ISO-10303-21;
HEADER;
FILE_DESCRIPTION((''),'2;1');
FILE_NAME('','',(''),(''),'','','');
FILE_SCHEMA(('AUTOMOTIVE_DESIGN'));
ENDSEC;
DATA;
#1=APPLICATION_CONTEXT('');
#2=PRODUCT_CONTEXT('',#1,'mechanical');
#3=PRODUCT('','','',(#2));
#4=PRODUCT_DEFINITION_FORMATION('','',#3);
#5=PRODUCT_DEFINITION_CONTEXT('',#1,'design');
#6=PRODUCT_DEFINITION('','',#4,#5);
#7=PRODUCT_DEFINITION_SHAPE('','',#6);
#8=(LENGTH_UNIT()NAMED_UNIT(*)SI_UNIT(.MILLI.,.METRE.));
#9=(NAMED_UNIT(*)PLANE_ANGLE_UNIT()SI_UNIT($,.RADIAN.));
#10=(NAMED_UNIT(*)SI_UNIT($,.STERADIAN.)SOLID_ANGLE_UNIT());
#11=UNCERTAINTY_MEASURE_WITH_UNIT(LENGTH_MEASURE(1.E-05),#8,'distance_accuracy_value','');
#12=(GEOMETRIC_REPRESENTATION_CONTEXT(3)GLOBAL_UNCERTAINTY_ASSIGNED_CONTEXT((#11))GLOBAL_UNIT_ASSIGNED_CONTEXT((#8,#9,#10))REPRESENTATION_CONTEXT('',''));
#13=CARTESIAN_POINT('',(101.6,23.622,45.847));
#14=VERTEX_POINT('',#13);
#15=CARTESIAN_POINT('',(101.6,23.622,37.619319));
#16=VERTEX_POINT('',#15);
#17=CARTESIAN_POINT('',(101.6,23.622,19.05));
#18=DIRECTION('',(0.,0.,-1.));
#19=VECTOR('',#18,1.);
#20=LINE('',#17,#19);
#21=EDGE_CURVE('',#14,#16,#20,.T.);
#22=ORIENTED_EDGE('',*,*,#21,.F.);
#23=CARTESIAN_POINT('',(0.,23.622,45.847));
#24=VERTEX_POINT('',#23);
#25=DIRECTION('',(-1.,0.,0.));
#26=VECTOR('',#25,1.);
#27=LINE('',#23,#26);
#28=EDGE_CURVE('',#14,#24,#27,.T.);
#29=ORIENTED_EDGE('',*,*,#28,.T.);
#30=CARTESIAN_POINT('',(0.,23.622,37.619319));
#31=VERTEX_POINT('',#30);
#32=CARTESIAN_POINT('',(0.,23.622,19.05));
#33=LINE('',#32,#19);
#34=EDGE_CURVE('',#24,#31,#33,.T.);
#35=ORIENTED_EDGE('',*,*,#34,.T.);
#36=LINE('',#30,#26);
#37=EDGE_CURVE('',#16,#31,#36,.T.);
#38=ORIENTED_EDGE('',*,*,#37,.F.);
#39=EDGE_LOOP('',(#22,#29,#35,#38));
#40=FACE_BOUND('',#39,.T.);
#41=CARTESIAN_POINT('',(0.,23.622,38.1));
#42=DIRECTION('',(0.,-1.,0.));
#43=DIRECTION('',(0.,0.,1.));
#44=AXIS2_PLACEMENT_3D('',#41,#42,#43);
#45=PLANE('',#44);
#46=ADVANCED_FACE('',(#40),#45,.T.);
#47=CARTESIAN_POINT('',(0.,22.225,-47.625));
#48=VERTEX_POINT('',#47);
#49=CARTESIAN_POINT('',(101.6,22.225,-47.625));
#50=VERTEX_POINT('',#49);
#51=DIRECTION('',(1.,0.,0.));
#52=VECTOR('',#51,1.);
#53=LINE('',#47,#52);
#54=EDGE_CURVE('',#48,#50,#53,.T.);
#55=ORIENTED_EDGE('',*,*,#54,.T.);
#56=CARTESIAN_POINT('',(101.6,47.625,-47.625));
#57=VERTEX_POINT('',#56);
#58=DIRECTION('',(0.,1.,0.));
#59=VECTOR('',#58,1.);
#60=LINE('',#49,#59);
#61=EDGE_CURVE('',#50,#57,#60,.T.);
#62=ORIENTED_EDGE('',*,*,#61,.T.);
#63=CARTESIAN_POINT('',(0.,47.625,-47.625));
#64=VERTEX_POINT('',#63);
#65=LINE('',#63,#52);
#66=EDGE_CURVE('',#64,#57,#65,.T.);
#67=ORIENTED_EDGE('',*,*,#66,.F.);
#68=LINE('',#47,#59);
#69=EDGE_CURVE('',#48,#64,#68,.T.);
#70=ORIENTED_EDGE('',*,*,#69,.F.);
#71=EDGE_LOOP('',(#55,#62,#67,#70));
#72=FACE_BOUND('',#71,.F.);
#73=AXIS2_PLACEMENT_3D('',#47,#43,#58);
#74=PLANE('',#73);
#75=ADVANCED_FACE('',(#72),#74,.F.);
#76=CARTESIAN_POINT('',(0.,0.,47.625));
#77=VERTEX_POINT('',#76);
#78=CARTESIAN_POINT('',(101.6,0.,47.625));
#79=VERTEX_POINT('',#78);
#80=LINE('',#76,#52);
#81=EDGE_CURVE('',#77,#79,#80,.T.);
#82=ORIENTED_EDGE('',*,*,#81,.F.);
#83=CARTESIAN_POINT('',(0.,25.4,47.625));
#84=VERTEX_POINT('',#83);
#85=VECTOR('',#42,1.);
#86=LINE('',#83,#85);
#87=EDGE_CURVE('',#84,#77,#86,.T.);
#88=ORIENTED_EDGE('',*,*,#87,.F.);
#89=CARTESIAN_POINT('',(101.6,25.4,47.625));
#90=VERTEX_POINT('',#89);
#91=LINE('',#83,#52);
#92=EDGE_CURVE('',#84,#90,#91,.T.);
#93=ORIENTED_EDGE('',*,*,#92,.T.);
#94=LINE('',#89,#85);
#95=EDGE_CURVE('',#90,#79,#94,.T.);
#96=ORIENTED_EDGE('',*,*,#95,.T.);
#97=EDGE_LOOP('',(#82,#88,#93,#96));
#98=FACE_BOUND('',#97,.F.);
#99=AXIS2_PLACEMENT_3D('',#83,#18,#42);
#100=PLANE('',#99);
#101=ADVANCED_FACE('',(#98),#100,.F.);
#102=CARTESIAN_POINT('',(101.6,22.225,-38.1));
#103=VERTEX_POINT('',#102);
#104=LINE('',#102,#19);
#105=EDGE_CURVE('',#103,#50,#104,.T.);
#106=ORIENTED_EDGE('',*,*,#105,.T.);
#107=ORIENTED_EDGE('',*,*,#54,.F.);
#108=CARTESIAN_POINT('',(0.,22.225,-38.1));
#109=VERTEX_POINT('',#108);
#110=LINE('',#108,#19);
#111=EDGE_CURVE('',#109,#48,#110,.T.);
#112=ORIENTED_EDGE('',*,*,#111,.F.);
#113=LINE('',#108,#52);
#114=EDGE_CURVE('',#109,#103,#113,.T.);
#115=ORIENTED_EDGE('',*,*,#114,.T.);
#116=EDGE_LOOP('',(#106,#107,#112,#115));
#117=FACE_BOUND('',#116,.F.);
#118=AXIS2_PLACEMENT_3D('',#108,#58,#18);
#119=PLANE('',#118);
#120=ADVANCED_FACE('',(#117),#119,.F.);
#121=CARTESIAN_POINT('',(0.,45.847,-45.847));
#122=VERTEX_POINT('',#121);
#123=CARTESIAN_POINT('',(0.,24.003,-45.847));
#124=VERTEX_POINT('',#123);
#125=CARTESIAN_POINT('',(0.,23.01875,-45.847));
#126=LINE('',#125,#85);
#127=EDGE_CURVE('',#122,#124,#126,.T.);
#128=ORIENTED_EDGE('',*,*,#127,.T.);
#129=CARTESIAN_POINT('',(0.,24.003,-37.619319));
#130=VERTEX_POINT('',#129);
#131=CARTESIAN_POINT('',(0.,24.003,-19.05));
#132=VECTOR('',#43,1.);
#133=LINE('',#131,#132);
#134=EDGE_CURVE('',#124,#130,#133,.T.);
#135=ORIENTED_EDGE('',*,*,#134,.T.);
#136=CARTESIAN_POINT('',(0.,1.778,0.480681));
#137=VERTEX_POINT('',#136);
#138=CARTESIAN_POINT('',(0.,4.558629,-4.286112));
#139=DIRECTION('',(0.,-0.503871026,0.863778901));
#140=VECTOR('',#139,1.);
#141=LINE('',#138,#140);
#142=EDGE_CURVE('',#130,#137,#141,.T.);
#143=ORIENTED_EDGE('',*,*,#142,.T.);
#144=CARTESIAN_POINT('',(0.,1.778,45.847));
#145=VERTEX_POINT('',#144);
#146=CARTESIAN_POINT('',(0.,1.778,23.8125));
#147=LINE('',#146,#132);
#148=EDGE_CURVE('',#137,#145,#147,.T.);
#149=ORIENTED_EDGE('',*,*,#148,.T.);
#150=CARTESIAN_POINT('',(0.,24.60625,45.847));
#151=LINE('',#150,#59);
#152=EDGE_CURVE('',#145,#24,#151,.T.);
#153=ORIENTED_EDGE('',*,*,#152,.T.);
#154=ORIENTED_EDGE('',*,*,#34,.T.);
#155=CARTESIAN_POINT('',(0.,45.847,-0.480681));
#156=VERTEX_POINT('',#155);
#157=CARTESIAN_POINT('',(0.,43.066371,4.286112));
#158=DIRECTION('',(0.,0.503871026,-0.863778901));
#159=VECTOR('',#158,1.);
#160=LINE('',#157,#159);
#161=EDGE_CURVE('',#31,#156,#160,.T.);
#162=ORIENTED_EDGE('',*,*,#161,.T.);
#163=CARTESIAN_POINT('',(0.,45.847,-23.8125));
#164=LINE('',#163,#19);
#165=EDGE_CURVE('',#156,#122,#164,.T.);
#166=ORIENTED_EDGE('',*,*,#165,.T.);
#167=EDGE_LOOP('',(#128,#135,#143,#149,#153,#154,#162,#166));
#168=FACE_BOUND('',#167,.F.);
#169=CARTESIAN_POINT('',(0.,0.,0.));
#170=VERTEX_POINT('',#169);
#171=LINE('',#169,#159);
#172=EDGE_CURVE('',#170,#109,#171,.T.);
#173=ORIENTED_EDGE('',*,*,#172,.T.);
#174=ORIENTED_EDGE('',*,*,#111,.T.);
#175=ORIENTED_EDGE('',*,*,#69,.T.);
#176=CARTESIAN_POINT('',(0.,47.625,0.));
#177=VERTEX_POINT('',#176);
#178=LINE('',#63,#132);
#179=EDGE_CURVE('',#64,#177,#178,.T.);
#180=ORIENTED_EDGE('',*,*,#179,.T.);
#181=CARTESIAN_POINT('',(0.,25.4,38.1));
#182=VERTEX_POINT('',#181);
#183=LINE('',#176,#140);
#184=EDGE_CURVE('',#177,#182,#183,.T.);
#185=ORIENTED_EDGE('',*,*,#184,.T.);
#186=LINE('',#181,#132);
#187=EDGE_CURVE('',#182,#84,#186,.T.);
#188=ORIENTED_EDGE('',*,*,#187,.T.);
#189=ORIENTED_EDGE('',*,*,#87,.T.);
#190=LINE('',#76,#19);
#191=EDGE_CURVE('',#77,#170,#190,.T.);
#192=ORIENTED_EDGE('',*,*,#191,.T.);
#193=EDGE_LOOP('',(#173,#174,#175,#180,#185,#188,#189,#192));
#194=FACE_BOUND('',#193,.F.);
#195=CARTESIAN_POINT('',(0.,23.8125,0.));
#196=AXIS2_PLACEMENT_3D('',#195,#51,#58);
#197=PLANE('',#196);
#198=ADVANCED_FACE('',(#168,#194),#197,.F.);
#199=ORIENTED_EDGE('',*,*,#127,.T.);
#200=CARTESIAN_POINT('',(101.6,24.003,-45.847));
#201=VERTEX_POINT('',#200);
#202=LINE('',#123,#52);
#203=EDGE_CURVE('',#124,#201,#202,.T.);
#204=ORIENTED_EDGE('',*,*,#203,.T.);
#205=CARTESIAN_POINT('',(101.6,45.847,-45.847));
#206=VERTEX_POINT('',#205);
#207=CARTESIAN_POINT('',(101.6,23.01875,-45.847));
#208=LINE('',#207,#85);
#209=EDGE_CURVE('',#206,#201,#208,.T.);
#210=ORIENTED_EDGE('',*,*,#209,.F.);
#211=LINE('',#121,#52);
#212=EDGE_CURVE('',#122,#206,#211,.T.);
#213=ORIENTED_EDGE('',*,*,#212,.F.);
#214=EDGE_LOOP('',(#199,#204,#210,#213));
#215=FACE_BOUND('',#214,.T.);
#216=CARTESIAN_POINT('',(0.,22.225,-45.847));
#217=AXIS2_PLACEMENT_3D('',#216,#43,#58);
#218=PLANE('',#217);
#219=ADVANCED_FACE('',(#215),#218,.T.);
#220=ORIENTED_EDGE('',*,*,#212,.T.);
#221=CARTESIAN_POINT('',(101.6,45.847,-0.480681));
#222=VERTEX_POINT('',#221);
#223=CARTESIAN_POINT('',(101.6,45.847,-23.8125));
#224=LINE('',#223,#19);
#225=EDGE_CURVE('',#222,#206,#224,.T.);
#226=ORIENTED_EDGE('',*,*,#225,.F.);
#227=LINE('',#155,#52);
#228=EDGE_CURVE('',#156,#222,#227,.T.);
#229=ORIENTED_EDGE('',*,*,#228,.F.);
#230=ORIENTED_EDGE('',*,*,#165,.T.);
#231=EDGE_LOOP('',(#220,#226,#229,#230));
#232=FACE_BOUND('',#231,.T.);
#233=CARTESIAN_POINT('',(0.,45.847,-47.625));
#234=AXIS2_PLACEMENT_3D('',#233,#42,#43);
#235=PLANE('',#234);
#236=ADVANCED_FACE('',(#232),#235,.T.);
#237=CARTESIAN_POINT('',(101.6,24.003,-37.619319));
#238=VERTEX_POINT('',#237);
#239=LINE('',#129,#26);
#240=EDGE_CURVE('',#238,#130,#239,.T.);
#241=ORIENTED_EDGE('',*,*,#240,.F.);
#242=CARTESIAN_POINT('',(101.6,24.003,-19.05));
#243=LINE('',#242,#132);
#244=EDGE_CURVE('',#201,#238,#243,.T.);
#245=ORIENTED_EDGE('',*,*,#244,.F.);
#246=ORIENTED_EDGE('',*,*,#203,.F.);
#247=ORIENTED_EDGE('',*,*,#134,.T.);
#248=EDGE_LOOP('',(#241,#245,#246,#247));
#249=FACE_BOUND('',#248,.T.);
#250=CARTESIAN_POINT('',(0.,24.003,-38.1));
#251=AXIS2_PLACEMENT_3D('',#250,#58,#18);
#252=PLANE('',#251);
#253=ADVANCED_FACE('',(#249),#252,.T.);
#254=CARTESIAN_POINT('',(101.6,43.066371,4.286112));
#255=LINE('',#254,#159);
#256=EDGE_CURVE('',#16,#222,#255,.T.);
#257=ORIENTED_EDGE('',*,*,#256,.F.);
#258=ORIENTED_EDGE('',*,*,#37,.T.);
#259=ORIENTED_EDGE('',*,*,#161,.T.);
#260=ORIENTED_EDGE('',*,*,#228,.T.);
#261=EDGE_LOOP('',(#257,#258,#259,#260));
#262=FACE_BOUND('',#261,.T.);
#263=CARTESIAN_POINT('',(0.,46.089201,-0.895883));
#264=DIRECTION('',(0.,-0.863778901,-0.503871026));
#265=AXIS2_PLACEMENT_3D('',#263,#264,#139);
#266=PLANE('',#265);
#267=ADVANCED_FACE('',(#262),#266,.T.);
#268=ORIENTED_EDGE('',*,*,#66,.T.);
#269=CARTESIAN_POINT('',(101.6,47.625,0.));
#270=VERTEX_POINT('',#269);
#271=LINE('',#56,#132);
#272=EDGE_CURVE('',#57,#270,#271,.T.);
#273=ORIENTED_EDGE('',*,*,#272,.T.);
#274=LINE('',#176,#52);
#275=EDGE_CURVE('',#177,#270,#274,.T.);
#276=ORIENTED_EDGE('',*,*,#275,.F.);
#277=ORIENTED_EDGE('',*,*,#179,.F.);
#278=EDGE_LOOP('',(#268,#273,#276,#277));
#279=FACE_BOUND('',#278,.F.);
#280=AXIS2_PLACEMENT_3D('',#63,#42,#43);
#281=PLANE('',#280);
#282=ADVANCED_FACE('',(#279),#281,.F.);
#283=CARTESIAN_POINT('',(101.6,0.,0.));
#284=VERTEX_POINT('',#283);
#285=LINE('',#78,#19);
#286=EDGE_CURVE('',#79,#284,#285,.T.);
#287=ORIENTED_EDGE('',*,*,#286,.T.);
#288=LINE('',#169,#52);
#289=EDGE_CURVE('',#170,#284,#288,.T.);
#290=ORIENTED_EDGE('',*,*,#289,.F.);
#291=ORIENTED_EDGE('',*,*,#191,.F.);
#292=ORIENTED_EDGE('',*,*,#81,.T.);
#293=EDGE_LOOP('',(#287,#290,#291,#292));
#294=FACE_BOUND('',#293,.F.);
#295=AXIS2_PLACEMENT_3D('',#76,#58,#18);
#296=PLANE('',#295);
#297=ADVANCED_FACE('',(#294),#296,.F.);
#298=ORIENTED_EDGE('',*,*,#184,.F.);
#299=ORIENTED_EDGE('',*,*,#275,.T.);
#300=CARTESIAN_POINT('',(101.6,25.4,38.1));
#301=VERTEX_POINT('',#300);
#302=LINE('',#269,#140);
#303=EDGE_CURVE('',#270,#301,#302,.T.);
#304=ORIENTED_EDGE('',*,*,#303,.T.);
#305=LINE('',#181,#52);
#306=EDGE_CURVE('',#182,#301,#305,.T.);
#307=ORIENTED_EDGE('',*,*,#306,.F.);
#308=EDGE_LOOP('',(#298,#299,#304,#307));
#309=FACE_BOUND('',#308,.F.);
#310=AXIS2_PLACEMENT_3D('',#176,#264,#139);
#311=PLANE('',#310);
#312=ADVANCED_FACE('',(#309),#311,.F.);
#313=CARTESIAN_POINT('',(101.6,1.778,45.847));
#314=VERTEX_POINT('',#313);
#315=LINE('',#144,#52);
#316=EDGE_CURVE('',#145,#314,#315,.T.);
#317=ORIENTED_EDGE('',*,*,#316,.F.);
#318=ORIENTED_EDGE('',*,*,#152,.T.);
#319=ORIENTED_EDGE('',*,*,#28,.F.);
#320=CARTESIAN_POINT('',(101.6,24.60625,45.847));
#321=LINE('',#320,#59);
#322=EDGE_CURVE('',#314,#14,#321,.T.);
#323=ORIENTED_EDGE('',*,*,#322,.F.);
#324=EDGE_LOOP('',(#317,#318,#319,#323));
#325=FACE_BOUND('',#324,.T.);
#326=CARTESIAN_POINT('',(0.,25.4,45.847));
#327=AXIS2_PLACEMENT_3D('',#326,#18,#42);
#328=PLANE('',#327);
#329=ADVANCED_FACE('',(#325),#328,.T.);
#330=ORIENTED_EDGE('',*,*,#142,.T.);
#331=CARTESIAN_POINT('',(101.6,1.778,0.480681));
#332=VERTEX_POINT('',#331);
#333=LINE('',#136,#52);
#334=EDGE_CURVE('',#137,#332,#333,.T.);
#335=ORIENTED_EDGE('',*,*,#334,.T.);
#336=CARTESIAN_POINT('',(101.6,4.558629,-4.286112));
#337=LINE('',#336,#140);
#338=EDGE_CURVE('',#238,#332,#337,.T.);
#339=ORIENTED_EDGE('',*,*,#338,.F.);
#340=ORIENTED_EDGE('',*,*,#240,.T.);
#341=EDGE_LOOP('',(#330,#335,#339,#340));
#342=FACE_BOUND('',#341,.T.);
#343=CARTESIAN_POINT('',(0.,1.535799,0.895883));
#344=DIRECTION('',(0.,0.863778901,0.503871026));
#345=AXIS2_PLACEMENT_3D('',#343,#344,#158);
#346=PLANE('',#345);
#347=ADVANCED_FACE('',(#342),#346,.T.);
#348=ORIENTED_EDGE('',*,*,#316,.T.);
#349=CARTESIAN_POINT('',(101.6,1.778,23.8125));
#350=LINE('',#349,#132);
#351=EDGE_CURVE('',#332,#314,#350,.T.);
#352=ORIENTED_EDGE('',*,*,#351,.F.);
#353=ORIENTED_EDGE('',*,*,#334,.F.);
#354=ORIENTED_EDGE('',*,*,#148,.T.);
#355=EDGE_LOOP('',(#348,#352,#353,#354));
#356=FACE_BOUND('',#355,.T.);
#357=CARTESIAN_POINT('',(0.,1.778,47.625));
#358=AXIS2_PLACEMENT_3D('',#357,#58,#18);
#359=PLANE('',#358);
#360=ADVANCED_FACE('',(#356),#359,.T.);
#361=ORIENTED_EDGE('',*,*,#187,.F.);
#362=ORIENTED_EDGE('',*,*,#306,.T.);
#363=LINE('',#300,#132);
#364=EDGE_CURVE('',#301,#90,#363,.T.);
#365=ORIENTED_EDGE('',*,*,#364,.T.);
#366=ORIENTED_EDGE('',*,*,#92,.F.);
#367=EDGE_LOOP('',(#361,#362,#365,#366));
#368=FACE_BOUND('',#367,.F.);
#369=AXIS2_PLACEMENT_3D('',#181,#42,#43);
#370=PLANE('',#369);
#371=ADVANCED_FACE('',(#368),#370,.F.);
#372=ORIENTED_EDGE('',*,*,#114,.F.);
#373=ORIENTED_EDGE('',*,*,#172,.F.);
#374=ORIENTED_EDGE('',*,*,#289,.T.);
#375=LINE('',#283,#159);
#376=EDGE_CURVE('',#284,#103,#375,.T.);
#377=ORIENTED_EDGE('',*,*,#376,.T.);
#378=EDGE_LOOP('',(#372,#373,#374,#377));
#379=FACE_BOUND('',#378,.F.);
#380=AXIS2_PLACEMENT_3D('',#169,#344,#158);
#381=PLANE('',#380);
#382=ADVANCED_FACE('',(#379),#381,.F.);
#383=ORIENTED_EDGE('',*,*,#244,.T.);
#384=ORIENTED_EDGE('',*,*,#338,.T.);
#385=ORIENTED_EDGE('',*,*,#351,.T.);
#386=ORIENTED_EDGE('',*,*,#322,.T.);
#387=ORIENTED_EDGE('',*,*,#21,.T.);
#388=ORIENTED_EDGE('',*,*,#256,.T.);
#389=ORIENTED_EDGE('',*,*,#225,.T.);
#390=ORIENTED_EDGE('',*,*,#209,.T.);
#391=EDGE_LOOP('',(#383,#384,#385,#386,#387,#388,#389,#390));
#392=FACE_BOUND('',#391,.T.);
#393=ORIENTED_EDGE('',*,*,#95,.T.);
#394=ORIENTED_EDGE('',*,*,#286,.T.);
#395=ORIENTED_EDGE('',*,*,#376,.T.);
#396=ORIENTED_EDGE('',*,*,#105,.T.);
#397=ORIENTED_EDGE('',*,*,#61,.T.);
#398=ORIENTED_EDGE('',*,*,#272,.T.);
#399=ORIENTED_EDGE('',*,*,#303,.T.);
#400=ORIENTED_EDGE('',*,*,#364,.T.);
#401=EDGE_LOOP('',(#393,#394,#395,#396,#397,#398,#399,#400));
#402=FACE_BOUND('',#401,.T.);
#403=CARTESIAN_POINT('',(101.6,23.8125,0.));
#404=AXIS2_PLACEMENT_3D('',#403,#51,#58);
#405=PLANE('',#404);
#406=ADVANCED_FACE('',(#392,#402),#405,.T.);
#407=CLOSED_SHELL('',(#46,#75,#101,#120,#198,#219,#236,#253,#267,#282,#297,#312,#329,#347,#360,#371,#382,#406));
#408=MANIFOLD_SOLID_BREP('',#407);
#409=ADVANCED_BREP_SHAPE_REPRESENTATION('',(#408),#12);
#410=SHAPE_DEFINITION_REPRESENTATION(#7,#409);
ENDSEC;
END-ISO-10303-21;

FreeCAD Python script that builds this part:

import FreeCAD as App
import Part
import Sketcher

V = App.Vector
Q = App.Units.Quantity


def faces_at(feature, points):
    """Names of the faces that lie closest to the given points."""
    faces = feature.Shape.Faces
    near = lambda p: min(range(len(faces)), key=lambda i: faces[i].distToShape(Part.Vertex(*p))[0])
    return sorted({f"Face{near(p) + 1}" for p in points})

doc = App.newDocument("Part")
params = doc.addObject("Spreadsheet::Sheet", "Params")
for row, (alias, value) in enumerate([
    ("sketch1_width", "1 in"),
    ("sketch1_height", "1.875 in"),
    ("pad1_length", "4 in"),
    ("thickness_wall", "0.07 in"),
], start=1):
    params.set(f"A{row}", alias)
    params.set(f"B{row}", "=" + value)
    params.setAlias(f"B{row}", alias)

body = doc.addObject("PartDesign::Body", "Body")

# Sketch on YZ plane
sketch1 = body.newObject("Sketcher::SketchObject", "Sketch")
sketch1.AttachmentSupport = (doc.getObject("YZ_Plane"), [""])
sketch1.MapMode = "FlatFace"
sketch1.addGeometry([
    Part.LineSegment(V(25.4, 47.625, 0), V(0, 47.625, 0)),  # 0
    Part.LineSegment(V(0, 47.625, 0), V(0, 0, 0)),  # 1
    Part.LineSegment(V(0, 0, 0), V(22.225, -38.1, 0)),  # 2
    Part.LineSegment(V(22.225, -38.1, 0), V(22.225, -47.625, 0)),  # 3
    Part.LineSegment(V(22.225, -47.625, 0), V(47.625, -47.625, 0)),  # 4
    Part.LineSegment(V(47.625, -47.625, 0), V(47.625, 0, 0)),  # 5
    Part.LineSegment(V(47.625, 0, 0), V(25.4, 38.1, 0)),  # 6
    Part.LineSegment(V(25.4, 38.1, 0), V(25.4, 47.625, 0)),  # 7
], False)
sketch1.addConstraint([
    Sketcher.Constraint("Coincident", 0, 2, 1, 1),
    Sketcher.Constraint("Coincident", 1, 2, 2, 1),
    Sketcher.Constraint("Coincident", 2, 2, 3, 1),
    Sketcher.Constraint("Coincident", 3, 2, 4, 1),
    Sketcher.Constraint("Coincident", 4, 2, 5, 1),
    Sketcher.Constraint("Coincident", 5, 2, 6, 1),
    Sketcher.Constraint("Coincident", 6, 2, 7, 1),
    Sketcher.Constraint("Coincident", 7, 2, 0, 1),
    Sketcher.Constraint("Horizontal", 0),
    Sketcher.Constraint("Vertical", 1),
    Sketcher.Constraint("Vertical", 3),
    Sketcher.Constraint("Horizontal", 4),
    Sketcher.Constraint("Vertical", 5),
    Sketcher.Constraint("Vertical", 7),
    Sketcher.Constraint("Coincident", 1, 2, -1, 1),
    Sketcher.Constraint("PointOnObject", 5, 2, -1),
    Sketcher.Constraint("Parallel", 2, 6),
    Sketcher.Constraint("Equal", 0, 4),
    Sketcher.Constraint("Equal", 1, 5),
    Sketcher.Constraint("DistanceX", 0, 2, 0, 1, Q("1 in")),
    Sketcher.Constraint("DistanceY", 2, 2, 6, 2, Q("3 in")),
    Sketcher.Constraint("DistanceY", 1, 2, 1, 1, Q("1.875 in")),
    Sketcher.Constraint("DistanceX", -1, 1, 2, 2, Q("0.875 in")),
])
sketch1.setExpression("Constraints[19]", "Params.sketch1_width")
sketch1.setExpression("Constraints[21]", "Params.sketch1_height")
pad1 = body.newObject("PartDesign::Pad", "Pad")
pad1.Profile = sketch1
pad1.setExpression("Length", "Params.pad1_length")
doc.recompute()

thickness = body.newObject("PartDesign::Thickness", "Thickness")
thickness.Base = (pad1, faces_at(pad1, [(101.6, 23.812, 0), (0, 23.812, 0)]))
thickness.setExpression("Value", "Params.thickness_wall")
thickness.Reversed = True
thickness.Join = "Intersection"

doc.recompute()
